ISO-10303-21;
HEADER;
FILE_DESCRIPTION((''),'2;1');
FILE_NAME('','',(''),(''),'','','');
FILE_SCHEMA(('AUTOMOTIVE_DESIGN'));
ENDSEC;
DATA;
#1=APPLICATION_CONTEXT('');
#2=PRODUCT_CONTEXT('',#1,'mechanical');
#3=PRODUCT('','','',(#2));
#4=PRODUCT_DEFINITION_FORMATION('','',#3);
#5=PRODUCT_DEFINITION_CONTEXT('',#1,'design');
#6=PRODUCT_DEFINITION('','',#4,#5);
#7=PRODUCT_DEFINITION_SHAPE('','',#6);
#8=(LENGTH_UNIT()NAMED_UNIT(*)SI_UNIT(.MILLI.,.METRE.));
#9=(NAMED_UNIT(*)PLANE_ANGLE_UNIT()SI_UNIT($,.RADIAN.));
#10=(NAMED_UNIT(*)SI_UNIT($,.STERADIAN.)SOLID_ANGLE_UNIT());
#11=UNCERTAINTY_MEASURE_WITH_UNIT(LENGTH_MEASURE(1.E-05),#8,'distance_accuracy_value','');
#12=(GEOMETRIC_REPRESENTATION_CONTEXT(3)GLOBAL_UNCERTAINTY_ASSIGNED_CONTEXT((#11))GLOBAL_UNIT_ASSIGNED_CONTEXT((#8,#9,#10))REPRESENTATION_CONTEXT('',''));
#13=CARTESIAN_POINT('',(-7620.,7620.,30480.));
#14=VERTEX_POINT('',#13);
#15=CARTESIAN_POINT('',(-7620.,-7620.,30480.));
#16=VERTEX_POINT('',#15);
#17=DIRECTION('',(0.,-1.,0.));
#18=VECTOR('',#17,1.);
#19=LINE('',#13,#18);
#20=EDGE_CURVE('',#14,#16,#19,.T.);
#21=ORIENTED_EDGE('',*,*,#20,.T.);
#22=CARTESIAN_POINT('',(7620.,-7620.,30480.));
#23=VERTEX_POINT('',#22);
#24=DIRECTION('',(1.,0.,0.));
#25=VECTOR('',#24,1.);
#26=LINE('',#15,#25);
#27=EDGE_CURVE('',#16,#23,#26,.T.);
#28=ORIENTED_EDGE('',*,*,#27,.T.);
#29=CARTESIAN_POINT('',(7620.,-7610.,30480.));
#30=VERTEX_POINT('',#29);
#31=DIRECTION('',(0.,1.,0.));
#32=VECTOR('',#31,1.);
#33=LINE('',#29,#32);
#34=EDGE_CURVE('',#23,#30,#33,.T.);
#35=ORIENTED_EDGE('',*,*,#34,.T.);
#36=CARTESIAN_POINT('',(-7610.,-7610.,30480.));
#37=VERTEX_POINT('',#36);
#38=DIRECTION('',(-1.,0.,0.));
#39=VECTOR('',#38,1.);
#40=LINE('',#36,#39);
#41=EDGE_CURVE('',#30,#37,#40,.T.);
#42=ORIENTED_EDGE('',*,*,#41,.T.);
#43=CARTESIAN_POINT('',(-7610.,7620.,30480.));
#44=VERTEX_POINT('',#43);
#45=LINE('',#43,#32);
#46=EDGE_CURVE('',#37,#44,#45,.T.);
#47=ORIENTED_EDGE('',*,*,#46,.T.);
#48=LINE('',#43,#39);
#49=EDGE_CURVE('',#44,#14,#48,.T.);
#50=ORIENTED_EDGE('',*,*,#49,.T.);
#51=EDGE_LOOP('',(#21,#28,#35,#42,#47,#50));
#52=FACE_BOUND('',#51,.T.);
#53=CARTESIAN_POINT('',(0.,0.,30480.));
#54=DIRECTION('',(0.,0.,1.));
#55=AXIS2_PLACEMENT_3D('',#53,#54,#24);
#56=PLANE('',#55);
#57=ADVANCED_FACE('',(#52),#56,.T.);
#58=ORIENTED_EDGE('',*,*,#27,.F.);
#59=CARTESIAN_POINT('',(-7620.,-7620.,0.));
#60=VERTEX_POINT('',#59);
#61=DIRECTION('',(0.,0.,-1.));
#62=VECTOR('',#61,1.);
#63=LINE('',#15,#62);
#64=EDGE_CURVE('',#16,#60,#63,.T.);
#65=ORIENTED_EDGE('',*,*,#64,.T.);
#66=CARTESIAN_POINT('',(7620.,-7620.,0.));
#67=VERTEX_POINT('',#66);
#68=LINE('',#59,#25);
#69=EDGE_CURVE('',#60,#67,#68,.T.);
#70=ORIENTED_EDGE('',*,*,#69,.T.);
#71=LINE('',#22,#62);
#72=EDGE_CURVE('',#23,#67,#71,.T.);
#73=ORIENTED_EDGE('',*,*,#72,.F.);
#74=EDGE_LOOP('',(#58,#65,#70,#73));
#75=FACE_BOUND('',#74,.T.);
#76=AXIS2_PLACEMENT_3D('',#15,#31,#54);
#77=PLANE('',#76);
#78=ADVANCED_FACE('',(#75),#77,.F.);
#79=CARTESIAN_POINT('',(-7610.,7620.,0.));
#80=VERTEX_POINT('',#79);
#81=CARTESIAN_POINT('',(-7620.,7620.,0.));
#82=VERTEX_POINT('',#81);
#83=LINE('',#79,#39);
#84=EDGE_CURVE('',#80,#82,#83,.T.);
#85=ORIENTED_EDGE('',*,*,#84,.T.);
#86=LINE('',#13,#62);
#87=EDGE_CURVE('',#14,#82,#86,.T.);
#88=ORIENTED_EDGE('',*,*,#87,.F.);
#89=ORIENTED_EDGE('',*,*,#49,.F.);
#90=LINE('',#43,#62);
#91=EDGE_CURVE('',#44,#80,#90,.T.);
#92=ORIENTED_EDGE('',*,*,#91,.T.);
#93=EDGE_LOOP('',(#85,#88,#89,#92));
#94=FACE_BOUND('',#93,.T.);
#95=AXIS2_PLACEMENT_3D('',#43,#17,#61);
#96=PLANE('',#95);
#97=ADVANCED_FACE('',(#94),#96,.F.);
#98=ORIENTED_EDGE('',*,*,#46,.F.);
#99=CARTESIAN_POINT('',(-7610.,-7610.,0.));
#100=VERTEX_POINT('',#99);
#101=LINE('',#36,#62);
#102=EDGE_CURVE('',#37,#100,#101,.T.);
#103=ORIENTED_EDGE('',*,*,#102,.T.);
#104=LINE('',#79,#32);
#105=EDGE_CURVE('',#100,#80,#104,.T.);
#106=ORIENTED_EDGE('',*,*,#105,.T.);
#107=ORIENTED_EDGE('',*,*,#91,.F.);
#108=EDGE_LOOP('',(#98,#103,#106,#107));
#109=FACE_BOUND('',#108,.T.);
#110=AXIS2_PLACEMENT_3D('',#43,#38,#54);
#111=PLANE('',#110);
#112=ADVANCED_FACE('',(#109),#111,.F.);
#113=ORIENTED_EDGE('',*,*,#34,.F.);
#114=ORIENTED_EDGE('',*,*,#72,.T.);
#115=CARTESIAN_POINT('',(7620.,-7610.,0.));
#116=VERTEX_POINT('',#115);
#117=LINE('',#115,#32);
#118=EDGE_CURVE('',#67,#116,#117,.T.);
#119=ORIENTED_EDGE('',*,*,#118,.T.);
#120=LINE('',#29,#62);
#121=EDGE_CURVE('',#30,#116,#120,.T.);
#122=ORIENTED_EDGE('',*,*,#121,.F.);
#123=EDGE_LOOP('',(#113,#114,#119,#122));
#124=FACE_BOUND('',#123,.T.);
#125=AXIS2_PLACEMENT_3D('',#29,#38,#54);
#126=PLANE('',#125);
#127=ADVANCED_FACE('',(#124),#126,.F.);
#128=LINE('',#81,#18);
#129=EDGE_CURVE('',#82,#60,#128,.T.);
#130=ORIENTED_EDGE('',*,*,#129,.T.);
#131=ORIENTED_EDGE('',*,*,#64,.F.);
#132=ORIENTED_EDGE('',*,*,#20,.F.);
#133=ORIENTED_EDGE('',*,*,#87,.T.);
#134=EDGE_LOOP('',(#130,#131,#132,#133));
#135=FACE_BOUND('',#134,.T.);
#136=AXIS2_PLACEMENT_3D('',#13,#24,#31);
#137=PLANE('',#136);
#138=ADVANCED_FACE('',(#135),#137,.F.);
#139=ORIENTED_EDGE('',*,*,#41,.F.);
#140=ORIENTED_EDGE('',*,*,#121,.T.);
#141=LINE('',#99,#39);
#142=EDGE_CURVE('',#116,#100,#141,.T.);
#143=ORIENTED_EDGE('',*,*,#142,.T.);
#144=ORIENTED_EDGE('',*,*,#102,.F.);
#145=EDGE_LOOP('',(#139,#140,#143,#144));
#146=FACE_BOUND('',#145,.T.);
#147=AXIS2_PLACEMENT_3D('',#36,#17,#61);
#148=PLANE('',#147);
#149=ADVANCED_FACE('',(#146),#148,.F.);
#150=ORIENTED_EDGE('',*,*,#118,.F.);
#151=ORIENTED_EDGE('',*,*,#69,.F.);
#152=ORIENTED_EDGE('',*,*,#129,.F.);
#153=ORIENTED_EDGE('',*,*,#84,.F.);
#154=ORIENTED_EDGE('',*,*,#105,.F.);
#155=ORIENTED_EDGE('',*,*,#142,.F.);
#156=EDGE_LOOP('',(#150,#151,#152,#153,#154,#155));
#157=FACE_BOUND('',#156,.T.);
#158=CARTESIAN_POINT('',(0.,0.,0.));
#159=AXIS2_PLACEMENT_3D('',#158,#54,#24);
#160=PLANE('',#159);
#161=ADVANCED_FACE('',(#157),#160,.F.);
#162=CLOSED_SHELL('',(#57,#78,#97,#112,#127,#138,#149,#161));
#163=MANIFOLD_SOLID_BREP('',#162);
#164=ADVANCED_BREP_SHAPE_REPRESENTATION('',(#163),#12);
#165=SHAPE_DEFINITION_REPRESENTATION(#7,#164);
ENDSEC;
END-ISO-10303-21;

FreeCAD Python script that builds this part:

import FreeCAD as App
import Part
import Sketcher
Q = App.Units.Quantity


def add_polygon(sketch, points):
    """Adds a closed chain of lines whose ends are joined by coincident constraints."""
    first, n = sketch.GeometryCount, len(points)
    for a, b in zip(points, points[1:] + points[:1]):
        sketch.addGeometry(Part.LineSegment(App.Vector(*a, 0), App.Vector(*b, 0)), False)
    for i in range(n):
        sketch.addConstraint(Sketcher.Constraint("Coincident", first + i, 2, first + (i + 1) % n, 1))

doc = App.newDocument("Part")
body = doc.addObject("PartDesign::Body", "Body")

sketch1 = doc.addObject("Sketcher::SketchObject", "Sketch")
body.addObject(sketch1)
sketch1.AttachmentSupport = (doc.XY_Plane, [""])
sketch1.MapMode = "FlatFace"
add_polygon(sketch1, [(-7610, -7610), (-7610, 7620), (-7620, 7620), (-7620, -7620), (7620, -7620), (7620, -7610)])
sketch1.addConstraint(Sketcher.Constraint("Vertical", 0))
sketch1.addConstraint(Sketcher.Constraint("Horizontal", 1))
sketch1.addConstraint(Sketcher.Constraint("Vertical", 2))
sketch1.addConstraint(Sketcher.Constraint("Horizontal", 3))
sketch1.addConstraint(Sketcher.Constraint("Vertical", 4))
sketch1.addConstraint(Sketcher.Constraint("Horizontal", 5))
sketch1.addConstraint(Sketcher.Constraint("Symmetric", 1, 2, 3, 2, -1, 1))
sketch1.addConstraint(Sketcher.Constraint("Equal", 5, 0))
sketch1.addConstraint(Sketcher.Constraint("Equal", 3, 2))
sketch1.addConstraint(Sketcher.Constraint("DistanceX", 1, 2, 1, 1, Q("10 mm")))
sketch1.addConstraint(Sketcher.Constraint("DistanceX", 3, 1, 3, 2, Q("15240 mm")))
pad1 = doc.addObject("PartDesign::Pad", "Pad")
body.addObject(pad1)
pad1.Profile = sketch1
pad1.Length = 30480

doc.recompute()
